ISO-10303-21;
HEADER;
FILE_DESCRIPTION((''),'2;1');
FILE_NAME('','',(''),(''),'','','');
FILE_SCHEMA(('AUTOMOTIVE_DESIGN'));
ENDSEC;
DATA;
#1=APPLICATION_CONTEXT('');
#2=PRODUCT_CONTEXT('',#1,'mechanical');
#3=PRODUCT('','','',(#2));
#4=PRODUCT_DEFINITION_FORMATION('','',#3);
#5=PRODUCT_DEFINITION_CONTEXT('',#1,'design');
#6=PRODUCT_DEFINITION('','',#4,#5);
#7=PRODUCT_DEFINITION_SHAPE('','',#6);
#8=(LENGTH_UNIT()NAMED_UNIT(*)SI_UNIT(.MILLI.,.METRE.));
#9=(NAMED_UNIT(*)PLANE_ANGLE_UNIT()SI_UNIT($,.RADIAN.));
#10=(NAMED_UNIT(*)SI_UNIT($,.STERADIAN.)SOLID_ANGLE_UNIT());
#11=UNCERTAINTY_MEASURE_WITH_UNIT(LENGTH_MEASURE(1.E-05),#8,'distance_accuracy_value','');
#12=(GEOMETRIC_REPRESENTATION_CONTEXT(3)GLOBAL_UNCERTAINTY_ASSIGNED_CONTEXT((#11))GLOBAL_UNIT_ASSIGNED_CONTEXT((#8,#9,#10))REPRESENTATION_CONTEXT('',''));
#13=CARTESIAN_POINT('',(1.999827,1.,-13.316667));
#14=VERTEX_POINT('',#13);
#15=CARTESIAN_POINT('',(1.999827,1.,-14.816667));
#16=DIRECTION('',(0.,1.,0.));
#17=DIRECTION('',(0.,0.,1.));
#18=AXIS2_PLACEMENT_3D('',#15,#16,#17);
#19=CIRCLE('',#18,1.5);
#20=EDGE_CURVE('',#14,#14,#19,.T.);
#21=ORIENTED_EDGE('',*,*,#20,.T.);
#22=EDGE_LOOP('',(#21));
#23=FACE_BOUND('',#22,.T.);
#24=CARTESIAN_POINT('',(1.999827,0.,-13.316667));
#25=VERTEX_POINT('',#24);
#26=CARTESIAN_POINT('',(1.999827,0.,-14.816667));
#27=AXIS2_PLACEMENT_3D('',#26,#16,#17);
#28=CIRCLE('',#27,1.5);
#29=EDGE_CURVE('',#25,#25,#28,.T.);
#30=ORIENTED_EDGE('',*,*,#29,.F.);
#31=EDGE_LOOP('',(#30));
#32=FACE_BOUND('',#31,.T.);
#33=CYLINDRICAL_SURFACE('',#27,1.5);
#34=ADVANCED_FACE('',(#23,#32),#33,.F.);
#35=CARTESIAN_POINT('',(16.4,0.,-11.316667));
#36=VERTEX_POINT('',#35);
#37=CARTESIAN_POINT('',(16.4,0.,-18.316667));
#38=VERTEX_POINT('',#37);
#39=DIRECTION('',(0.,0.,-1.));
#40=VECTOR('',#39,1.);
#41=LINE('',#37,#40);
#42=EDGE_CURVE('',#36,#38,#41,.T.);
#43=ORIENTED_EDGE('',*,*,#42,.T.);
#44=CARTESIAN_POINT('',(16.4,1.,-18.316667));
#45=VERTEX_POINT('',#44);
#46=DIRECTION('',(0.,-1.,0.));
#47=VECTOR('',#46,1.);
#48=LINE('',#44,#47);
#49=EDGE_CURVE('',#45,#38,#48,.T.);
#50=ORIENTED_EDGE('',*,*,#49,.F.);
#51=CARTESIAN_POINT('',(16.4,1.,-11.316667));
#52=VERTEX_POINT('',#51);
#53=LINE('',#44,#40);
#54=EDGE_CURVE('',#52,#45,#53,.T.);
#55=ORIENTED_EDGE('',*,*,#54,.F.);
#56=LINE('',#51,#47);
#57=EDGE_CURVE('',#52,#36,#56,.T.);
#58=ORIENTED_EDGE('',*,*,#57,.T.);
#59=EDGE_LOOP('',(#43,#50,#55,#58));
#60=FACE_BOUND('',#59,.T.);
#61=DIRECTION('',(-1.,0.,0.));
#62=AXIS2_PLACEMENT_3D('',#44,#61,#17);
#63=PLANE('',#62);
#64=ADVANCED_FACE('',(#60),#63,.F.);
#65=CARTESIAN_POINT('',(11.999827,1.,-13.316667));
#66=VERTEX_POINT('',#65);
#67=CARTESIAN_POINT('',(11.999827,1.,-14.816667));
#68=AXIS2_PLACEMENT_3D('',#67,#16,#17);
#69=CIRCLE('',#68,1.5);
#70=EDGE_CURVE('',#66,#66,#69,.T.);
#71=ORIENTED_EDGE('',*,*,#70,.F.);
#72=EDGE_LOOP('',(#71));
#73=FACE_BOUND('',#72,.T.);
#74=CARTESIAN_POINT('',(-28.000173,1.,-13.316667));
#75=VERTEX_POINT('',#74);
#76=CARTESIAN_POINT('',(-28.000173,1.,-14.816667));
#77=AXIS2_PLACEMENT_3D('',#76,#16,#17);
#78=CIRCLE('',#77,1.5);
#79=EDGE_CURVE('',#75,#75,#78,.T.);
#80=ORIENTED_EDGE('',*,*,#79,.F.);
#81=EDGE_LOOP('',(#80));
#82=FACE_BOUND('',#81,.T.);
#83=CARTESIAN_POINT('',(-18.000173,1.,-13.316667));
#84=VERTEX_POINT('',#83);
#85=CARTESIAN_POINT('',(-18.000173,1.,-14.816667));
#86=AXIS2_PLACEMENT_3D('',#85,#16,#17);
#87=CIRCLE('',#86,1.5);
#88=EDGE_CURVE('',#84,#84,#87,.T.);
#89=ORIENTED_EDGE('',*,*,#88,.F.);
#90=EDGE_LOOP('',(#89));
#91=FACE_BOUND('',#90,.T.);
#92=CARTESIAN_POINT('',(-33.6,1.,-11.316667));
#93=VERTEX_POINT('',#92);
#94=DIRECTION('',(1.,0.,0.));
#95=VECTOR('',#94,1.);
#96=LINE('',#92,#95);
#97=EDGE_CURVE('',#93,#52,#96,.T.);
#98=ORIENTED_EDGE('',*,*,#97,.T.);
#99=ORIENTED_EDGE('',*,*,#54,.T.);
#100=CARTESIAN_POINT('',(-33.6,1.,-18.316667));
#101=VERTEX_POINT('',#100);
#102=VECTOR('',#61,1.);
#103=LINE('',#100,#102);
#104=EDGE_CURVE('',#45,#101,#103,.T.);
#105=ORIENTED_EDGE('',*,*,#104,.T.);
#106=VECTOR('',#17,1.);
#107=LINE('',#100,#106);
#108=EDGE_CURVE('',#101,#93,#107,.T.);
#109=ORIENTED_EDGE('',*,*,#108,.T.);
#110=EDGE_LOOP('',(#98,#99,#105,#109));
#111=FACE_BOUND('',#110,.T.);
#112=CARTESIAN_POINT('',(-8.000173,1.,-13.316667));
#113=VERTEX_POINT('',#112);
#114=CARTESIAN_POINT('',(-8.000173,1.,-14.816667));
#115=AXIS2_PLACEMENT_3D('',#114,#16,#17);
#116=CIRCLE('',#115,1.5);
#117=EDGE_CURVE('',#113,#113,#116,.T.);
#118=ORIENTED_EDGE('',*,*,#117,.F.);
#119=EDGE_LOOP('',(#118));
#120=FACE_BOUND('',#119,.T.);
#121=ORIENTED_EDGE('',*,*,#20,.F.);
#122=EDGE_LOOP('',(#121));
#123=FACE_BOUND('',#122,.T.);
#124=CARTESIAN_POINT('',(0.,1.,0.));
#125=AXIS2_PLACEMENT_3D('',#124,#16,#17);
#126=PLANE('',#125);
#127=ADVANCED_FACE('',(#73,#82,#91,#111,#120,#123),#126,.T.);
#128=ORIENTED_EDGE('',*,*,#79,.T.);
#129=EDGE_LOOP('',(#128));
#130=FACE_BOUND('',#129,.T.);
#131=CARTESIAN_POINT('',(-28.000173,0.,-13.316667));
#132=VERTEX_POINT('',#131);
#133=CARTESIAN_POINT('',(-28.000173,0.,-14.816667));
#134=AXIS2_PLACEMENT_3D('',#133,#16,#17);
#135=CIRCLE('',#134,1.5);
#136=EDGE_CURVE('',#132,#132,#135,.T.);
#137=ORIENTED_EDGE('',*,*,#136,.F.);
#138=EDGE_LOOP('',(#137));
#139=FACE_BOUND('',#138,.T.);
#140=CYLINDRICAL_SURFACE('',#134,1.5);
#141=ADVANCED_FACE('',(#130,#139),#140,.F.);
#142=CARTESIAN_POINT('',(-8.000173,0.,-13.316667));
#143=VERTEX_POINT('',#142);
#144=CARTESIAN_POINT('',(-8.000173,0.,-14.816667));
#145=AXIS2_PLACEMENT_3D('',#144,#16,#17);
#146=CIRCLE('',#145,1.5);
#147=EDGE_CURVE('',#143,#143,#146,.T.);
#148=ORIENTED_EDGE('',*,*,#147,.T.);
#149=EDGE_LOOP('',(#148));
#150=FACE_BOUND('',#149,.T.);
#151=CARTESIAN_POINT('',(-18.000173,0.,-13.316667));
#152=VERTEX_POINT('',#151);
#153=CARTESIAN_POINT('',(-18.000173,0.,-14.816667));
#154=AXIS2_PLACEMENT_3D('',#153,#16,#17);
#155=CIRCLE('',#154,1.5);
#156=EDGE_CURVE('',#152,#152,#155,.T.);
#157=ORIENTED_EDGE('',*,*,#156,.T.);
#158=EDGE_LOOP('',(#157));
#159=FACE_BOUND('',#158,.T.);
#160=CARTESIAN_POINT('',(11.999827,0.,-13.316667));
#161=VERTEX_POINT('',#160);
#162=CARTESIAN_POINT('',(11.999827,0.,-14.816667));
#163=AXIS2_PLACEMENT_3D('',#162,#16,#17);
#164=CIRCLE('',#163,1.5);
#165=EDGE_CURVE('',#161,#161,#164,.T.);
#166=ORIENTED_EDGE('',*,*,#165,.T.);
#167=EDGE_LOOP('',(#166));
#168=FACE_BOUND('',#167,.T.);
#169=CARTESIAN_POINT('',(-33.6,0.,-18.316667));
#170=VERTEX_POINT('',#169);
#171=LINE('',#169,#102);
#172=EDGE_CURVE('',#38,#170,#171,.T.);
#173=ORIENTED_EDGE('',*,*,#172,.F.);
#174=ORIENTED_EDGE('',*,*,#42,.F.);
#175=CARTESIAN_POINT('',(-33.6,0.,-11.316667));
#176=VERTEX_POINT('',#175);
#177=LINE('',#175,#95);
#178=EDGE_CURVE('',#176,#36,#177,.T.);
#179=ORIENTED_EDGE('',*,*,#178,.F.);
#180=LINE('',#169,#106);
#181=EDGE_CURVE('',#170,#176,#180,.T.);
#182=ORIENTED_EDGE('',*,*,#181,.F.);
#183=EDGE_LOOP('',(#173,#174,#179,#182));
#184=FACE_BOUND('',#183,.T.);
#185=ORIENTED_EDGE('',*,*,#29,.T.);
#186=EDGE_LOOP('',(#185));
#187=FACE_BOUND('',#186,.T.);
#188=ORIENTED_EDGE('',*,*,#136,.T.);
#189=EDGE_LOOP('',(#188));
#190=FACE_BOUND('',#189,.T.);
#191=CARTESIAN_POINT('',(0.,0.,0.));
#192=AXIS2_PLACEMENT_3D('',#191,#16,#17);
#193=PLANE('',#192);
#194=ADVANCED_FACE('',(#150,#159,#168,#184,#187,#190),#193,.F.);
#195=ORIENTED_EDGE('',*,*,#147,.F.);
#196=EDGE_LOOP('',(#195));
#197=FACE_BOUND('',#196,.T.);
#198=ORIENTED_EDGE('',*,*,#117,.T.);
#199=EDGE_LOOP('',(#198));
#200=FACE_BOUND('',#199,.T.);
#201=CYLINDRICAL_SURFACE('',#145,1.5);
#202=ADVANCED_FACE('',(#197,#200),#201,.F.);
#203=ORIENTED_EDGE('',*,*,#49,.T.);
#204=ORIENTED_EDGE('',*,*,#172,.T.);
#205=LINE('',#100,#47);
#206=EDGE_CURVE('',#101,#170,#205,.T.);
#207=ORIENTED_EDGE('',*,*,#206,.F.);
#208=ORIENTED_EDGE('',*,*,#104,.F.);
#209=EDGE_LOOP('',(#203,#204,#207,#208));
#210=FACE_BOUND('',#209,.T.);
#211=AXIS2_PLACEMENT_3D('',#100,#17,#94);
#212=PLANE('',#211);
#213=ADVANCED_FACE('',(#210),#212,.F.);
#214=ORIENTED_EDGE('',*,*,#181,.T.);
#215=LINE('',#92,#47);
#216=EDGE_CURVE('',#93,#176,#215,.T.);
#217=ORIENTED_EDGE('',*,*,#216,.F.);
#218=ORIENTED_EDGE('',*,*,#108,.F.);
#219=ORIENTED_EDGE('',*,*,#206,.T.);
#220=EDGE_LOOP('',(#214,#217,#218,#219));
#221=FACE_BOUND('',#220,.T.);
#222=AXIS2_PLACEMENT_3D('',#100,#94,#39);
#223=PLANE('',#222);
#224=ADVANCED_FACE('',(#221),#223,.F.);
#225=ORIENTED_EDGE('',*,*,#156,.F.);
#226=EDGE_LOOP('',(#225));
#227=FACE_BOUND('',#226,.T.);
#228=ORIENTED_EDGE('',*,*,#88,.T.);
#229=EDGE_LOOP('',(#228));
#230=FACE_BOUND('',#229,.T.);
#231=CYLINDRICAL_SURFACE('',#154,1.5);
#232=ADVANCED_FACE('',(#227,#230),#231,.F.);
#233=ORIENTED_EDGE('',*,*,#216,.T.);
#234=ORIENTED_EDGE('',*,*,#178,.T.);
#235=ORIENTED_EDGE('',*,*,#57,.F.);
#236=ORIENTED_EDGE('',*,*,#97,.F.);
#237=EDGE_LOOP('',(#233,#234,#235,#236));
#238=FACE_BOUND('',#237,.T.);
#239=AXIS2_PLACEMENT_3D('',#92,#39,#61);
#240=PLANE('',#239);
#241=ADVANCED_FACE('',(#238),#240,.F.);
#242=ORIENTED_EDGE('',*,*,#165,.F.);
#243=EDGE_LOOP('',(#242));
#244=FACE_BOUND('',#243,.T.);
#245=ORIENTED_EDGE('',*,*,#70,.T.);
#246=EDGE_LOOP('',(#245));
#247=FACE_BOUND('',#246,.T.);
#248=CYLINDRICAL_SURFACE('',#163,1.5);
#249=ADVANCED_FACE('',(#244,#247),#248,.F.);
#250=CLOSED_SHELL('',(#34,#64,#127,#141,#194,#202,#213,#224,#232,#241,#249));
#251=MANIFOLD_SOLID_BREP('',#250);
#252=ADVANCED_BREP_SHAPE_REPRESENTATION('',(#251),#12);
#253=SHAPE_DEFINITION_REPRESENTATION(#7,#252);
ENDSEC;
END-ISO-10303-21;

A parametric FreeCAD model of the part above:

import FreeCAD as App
import Part
import Sketcher

V = App.Vector
Q = App.Units.Quantity


def add_polygon(sketch, points):
    """Adds a closed chain of lines whose ends are joined by coincident constraints."""
    first, n = sketch.GeometryCount, len(points)
    for a, b in zip(points, points[1:] + points[:1]):
        sketch.addGeometry(Part.LineSegment(App.Vector(*a, 0), App.Vector(*b, 0)), False)
    for i in range(n):
        sketch.addConstraint(Sketcher.Constraint("Coincident", first + i, 2, first + (i + 1) % n, 1))

doc = App.newDocument("Part")
params = doc.addObject("Spreadsheet::Sheet", "Params")
for row, (alias, value) in enumerate([
    ("sketch1_width", "50 mm"),
    ("sketch1_height", "7 mm"),
    ("pad1_length", "1 mm"),
    ("sketch2_diameter", "3 mm"),
    ("linearpattern_pitch", "10 mm"),
], start=1):
    params.set(f"A{row}", alias)
    params.set(f"B{row}", "=" + value)
    params.setAlias(f"B{row}", alias)

body = doc.addObject("PartDesign::Body", "Body")

# Sketch on XZ plane
sketch1 = doc.addObject("Sketcher::SketchObject", "Sketch")
body.addObject(sketch1)
sketch1.AttachmentSupport = (doc.XZ_Plane, [""])
sketch1.MapMode = "FlatFace"
add_polygon(sketch1, [(-34, -18), (-34, -11), (16, -11), (16, -18)])  # lines 0-3
sketch1.addConstraint([
    Sketcher.Constraint("Vertical", 0),
    Sketcher.Constraint("Horizontal", 1),
    Sketcher.Constraint("Vertical", 2),
    Sketcher.Constraint("Horizontal", 3),
    Sketcher.Constraint("DistanceX", 1, 1, 1, 2, Q("50 mm")),
    Sketcher.Constraint("DistanceY", 0, 1, 0, 2, Q("7 mm")),
    Sketcher.Constraint("DistanceX", 0, 2, -1, 1, Q("33.6 mm")),
    Sketcher.Constraint("DistanceY", 0, 2, -1, 1, Q("11.316667 mm")),
])
sketch1.setExpression("Constraints[8]", "Params.sketch1_width")
sketch1.setExpression("Constraints[9]", "Params.sketch1_height")
pad1 = doc.addObject("PartDesign::Pad", "Pad")
body.addObject(pad1)
pad1.Profile = sketch1
pad1.setExpression("Length", "Params.pad1_length")
pad1.Reversed = True

# Sketch on XZ plane
sketch2 = doc.addObject("Sketcher::SketchObject", "Sketch001")
body.addObject(sketch2)
sketch2.AttachmentSupport = (doc.XZ_Plane, [""])
sketch2.MapMode = "FlatFace"
sketch2.AttachmentOffset = App.Placement(V(0, 0, -1), App.Rotation())
sketch2.addGeometry(Part.Circle(V(-28, -14.8, 0), V(0, 0, 1), 1.5), False)
sketch2.addConstraint([
    Sketcher.Constraint("Diameter", 0, Q("3 mm")),
    Sketcher.Constraint("DistanceX", 0, 3, -1, 1, Q("28.000173 mm")),
    Sketcher.Constraint("DistanceY", 0, 3, -1, 1, Q("14.816667 mm")),
])
sketch2.setExpression("Constraints[0]", "Params.sketch2_diameter")
pocket1 = doc.addObject("PartDesign::Pocket", "Pocket")
body.addObject(pocket1)
pocket1.Profile = sketch2
pocket1.Type = "ThroughAll"
pocket1.Reversed = True
doc.recompute()

linearpattern = doc.addObject("PartDesign::LinearPattern", "LinearPattern")
body.addObject(linearpattern)
linearpattern.Originals = [pocket1]
linearpattern.Direction = (doc.X_Axis, [""])
linearpattern.Mode = "offset"
linearpattern.setExpression("Offset", "Params.linearpattern_pitch")
linearpattern.Occurrences = 5
body.Tip = linearpattern

doc.recompute()
